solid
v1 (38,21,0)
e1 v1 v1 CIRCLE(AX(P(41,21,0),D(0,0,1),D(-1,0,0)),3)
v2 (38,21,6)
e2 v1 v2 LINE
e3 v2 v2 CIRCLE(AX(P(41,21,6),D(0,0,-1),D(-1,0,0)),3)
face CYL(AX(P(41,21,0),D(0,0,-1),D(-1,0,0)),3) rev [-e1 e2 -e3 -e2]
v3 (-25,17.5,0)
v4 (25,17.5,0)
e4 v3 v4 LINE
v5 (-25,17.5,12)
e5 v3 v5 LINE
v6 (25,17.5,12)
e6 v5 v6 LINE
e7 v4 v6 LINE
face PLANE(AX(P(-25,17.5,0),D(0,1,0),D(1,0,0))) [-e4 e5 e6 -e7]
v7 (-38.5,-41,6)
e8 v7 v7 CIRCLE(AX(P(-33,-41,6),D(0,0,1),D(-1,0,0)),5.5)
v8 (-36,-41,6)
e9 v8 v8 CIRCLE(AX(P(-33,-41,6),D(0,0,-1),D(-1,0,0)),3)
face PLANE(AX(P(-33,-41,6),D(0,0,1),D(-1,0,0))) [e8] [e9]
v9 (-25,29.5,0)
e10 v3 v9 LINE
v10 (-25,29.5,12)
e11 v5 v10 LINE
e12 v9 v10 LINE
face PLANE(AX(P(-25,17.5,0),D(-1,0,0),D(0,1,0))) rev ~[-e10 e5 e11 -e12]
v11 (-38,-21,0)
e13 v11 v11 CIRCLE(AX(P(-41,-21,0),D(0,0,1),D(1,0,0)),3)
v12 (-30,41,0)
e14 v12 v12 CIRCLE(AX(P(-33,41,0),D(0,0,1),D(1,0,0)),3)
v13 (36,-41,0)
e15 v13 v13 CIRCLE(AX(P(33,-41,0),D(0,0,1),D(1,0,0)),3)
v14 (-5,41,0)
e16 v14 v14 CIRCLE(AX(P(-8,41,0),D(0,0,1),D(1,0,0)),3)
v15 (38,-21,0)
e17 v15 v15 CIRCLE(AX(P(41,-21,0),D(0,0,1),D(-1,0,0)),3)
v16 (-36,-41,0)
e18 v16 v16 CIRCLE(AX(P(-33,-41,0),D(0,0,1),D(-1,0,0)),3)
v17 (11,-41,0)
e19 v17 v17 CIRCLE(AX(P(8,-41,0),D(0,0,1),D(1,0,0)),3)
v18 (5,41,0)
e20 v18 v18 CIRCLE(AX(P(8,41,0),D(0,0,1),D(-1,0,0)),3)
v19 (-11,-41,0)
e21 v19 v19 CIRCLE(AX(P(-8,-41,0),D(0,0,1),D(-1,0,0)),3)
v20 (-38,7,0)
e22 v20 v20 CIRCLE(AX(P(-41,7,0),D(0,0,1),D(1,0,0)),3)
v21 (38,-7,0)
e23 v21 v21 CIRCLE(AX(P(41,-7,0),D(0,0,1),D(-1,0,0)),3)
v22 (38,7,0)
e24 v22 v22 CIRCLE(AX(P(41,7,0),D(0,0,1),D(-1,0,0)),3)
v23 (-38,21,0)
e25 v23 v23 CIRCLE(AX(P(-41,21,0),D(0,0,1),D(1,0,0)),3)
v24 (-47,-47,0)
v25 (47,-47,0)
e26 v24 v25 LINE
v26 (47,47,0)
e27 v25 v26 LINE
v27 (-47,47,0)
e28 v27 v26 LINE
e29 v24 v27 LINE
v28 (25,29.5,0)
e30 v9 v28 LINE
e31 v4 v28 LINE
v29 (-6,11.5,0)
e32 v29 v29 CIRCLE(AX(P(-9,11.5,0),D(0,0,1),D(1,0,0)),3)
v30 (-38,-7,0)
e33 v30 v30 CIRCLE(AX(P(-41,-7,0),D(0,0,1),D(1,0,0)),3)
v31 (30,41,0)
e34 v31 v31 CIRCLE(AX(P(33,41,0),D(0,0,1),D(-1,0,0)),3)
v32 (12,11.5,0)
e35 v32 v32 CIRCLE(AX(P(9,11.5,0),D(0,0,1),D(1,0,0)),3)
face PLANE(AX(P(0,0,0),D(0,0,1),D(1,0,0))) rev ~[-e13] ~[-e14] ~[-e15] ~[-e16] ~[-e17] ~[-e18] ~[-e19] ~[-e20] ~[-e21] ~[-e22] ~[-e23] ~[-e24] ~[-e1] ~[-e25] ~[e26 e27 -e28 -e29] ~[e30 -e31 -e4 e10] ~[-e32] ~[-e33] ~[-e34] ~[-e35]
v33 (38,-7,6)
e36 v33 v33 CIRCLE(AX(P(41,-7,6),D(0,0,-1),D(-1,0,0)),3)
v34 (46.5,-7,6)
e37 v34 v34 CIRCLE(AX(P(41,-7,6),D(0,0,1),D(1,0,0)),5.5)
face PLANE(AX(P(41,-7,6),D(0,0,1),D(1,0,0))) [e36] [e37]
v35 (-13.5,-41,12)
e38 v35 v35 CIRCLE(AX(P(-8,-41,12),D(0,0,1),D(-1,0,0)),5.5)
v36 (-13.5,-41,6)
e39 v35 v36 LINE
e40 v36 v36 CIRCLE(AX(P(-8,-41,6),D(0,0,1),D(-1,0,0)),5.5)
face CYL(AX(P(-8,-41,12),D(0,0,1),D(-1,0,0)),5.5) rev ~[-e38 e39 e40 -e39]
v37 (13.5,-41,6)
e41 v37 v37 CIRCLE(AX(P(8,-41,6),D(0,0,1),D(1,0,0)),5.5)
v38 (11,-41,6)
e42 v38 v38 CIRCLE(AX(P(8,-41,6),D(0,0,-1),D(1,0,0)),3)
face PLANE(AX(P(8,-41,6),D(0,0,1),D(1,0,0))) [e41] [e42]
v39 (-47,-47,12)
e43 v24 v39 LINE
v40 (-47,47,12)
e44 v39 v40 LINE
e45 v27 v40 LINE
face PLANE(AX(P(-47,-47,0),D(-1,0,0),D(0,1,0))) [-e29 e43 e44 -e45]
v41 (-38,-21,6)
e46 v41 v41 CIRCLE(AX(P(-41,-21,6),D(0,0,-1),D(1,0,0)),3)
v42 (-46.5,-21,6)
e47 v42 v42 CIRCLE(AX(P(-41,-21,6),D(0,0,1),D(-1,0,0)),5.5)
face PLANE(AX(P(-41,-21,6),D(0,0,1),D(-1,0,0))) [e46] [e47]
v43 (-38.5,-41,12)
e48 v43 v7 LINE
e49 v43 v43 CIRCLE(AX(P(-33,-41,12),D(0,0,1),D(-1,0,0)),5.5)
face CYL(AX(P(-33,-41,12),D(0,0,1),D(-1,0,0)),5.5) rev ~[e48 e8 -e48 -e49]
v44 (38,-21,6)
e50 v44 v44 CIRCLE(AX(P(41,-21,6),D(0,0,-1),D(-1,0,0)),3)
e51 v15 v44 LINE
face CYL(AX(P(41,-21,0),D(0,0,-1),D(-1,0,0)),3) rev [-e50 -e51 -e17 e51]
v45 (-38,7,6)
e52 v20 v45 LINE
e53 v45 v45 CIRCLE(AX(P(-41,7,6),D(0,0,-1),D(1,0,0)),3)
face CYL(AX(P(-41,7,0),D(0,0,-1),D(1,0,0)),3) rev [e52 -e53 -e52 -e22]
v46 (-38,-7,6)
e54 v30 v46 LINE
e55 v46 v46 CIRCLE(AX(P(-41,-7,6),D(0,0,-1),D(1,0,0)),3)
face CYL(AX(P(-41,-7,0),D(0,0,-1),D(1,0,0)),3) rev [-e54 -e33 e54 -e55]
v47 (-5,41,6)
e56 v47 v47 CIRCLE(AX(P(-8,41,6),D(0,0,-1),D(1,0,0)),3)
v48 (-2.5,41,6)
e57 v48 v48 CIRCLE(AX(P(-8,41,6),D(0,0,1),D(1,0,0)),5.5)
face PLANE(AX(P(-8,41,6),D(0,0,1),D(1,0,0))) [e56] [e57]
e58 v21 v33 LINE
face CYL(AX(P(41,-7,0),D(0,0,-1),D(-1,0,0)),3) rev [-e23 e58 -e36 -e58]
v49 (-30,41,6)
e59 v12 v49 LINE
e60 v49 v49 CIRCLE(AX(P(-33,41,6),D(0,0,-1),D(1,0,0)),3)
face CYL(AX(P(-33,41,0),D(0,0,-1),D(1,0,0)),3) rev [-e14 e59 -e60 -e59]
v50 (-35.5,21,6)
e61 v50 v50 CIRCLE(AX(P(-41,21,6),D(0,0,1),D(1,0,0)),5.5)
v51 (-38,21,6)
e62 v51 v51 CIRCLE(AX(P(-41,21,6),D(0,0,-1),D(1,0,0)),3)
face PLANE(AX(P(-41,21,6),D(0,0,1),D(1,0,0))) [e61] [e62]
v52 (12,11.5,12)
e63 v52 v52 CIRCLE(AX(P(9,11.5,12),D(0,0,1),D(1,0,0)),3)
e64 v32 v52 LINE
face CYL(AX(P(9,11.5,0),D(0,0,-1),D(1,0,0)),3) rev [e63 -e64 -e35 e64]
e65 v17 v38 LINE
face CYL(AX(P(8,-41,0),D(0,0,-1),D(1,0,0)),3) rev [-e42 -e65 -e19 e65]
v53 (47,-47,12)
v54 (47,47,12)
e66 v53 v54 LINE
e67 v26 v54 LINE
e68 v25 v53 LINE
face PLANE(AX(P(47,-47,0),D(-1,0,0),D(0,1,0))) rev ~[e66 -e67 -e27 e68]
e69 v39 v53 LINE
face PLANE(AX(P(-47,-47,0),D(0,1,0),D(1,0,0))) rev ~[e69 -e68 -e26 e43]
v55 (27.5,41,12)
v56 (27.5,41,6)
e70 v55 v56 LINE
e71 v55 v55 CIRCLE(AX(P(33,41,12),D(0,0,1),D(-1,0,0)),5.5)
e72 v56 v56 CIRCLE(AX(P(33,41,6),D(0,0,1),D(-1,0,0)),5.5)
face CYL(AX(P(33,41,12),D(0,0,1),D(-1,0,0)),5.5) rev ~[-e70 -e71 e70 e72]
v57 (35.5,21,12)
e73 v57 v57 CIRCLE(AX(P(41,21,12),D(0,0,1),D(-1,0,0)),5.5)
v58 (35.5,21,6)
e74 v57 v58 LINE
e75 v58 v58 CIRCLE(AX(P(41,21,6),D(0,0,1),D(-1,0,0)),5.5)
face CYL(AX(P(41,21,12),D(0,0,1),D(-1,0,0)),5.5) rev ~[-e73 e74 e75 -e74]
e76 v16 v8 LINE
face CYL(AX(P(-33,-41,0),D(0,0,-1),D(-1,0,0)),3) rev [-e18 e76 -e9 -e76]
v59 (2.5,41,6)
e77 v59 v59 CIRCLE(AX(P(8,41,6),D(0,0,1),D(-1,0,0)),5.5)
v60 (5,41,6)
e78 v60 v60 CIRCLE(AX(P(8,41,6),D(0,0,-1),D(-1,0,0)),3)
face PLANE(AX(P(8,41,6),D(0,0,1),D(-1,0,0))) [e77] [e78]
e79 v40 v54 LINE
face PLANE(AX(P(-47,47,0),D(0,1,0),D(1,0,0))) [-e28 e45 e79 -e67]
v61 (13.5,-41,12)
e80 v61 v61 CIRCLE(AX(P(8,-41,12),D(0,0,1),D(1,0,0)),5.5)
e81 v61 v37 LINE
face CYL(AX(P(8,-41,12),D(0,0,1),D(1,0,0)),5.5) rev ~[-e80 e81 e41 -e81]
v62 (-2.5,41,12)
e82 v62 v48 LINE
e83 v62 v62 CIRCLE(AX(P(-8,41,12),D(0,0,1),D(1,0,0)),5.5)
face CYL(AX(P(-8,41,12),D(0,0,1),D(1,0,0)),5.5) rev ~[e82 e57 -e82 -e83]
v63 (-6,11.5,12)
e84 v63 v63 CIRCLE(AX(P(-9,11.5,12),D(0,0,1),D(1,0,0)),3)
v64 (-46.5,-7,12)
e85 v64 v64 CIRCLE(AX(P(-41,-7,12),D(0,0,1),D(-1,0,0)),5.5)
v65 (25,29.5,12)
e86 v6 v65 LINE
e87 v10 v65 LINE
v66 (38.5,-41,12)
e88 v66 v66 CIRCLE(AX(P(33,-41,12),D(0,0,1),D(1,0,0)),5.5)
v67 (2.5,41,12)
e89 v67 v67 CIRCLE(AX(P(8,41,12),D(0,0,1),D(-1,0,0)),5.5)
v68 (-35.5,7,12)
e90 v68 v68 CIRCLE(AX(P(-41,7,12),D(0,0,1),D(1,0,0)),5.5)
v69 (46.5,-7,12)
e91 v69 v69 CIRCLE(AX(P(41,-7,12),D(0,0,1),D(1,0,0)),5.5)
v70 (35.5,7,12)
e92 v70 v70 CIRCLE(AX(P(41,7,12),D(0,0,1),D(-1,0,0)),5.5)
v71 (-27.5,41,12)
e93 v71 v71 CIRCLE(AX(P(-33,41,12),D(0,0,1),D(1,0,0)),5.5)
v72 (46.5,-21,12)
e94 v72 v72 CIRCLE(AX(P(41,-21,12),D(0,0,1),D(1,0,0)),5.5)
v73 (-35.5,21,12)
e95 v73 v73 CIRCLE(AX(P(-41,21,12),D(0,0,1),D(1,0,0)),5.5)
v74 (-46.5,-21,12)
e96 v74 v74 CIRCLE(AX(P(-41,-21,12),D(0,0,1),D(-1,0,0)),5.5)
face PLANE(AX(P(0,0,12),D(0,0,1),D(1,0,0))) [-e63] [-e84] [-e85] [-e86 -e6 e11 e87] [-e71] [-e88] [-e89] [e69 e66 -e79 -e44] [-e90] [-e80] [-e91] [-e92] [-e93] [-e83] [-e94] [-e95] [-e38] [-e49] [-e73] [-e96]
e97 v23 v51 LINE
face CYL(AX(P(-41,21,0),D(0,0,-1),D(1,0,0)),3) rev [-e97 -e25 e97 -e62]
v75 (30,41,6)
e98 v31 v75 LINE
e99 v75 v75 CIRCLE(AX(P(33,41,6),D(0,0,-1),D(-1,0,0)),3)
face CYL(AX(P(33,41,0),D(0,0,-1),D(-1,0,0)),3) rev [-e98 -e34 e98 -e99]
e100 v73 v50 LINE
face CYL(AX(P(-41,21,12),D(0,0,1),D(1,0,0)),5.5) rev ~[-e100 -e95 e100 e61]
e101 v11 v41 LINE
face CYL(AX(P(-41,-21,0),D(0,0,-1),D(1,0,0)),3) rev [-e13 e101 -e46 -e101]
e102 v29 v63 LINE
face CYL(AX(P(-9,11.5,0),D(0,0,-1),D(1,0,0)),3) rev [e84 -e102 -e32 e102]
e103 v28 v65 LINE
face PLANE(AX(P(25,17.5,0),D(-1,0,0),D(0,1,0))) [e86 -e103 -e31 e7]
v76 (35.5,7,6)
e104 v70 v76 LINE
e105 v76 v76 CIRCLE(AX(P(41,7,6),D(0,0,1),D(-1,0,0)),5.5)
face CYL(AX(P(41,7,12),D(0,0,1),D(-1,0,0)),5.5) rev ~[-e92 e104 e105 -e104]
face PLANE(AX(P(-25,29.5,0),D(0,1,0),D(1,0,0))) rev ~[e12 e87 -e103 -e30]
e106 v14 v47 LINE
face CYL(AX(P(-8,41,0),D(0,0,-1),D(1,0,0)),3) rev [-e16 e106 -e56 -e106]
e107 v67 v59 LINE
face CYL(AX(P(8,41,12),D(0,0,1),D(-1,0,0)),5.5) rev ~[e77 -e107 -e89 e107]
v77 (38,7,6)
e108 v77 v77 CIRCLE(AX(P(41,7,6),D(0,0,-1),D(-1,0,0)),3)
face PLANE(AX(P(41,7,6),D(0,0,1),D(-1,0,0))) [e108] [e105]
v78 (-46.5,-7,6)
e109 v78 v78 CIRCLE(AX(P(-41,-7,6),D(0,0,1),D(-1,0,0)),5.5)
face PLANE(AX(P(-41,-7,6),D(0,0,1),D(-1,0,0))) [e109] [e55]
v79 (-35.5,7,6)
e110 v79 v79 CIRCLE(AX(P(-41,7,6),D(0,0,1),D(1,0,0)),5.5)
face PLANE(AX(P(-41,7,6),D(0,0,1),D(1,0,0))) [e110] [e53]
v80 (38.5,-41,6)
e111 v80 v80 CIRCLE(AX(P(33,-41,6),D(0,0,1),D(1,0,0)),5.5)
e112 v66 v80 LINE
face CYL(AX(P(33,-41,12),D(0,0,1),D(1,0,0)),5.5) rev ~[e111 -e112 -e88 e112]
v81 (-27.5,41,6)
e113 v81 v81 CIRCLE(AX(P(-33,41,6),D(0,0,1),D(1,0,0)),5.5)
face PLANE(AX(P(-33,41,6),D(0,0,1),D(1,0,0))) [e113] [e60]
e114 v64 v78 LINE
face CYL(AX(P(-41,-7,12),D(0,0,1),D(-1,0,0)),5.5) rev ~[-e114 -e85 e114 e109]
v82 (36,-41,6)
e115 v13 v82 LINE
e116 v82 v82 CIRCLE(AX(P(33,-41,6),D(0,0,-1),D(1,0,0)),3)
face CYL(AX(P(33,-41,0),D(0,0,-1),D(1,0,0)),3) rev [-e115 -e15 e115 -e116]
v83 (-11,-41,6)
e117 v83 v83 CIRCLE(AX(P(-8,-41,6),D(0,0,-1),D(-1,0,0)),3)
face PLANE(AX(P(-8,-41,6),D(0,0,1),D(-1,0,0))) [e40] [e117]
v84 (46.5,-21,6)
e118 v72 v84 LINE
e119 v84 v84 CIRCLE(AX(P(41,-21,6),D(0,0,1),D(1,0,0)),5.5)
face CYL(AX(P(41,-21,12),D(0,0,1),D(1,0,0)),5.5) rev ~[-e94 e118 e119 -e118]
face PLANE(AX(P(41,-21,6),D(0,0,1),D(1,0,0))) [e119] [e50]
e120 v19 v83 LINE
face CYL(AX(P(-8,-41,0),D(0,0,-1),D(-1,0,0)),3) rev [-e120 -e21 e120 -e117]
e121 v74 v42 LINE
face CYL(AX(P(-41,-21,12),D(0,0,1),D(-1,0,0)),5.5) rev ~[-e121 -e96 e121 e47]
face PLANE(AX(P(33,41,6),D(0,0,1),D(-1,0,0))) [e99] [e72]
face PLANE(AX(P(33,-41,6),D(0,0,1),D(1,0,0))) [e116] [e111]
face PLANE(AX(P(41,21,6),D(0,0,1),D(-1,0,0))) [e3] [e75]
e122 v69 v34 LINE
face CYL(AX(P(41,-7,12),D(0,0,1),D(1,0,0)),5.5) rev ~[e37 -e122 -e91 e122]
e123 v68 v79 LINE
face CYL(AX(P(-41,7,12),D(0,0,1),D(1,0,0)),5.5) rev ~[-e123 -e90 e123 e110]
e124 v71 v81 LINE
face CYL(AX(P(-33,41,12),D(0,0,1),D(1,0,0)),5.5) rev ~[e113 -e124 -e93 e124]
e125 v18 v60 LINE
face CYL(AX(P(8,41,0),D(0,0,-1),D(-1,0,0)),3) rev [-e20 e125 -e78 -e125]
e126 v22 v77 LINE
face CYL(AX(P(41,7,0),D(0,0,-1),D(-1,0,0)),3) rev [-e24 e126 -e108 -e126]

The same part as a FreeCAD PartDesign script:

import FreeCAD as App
import Part
import Sketcher
from FreeCAD import Vector

doc = App.newDocument("Part")
body = doc.addObject("PartDesign::Body", "Body")

# Sketch on XY plane
sketch1 = body.newObject("Sketcher::SketchObject", "Sketch")
sketch1.AttachmentSupport = (doc.getObject("XY_Plane"), [""])
sketch1.MapMode = "FlatFace"
sketch1.addGeometry([
    Part.LineSegment(Vector(-47, 47, 0), Vector(-47, -47, 0)),  # 0
    Part.LineSegment(Vector(-47, -47, 0), Vector(47, -47, 0)),  # 1
    Part.LineSegment(Vector(47, -47, 0), Vector(47, 47, 0)),  # 2
    Part.LineSegment(Vector(47, 47, 0), Vector(-47, 47, 0)),  # 3
    Part.Circle(Vector(-33, -41, 0), Vector(0, 0, 1), 3),  # 4
    Part.Circle(Vector(-8, -41, 0), Vector(0, 0, 1), 3),  # 5
    Part.Circle(Vector(-41, -21, 0), Vector(0, 0, 1), 3),  # 6
    Part.Circle(Vector(-41, -7, 0), Vector(0, 0, 1), 3),  # 7
    Part.Circle(Vector(8, -41, 0), Vector(0, 0, 1), 3),  # 8
    Part.Circle(Vector(33, -41, 0), Vector(0, 0, 1), 3),  # 9
    Part.Circle(Vector(41, -21, 0), Vector(0, 0, 1), 3),  # 10
    Part.Circle(Vector(41, -7, 0), Vector(0, 0, 1), 3),  # 11
    Part.Circle(Vector(-41, 7, 0), Vector(0, 0, 1), 3),  # 12
    Part.Circle(Vector(-41, 21, 0), Vector(0, 0, 1), 3),  # 13
    Part.Circle(Vector(-9, 11.5, 0), Vector(0, 0, 1), 3),  # 14
    Part.Circle(Vector(-33, 41, 0), Vector(0, 0, 1), 3),  # 15
    Part.Circle(Vector(-8, 41, 0), Vector(0, 0, 1), 3),  # 16
    Part.Circle(Vector(9, 11.5, 0), Vector(0, 0, 1), 3),  # 17
    Part.Circle(Vector(41, 7, 0), Vector(0, 0, 1), 3),  # 18
    Part.Circle(Vector(41, 21, 0), Vector(0, 0, 1), 3),  # 19
    Part.LineSegment(Vector(25, 17.5, 0), Vector(-25, 17.5, 0)),  # 20
    Part.LineSegment(Vector(-25, 17.5, 0), Vector(-25, 29.5, 0)),  # 21
    Part.LineSegment(Vector(-25, 29.5, 0), Vector(25, 29.5, 0)),  # 22
    Part.LineSegment(Vector(25, 29.5, 0), Vector(25, 17.5, 0)),  # 23
    Part.Circle(Vector(8, 41, 0), Vector(0, 0, 1), 3),  # 24
    Part.Circle(Vector(33, 41, 0), Vector(0, 0, 1), 3),  # 25
], False)
sketch1.addConstraint([
    Sketcher.Constraint("Coincident", 0, 2, 1, 1),
    Sketcher.Constraint("Coincident", 1, 2, 2, 1),
    Sketcher.Constraint("Coincident", 2, 2, 3, 1),
    Sketcher.Constraint("Coincident", 3, 2, 0, 1),
    Sketcher.Constraint("Coincident", 20, 2, 21, 1),
    Sketcher.Constraint("Coincident", 21, 2, 22, 1),
    Sketcher.Constraint("Coincident", 22, 2, 23, 1),
    Sketcher.Constraint("Coincident", 23, 2, 20, 1),
    Sketcher.Constraint("Vertical", 0),
    Sketcher.Constraint("Horizontal", 1),
    Sketcher.Constraint("Vertical", 2),
    Sketcher.Constraint("Horizontal", 3),
    Sketcher.Constraint("Horizontal", 20),
    Sketcher.Constraint("Vertical", 21),
    Sketcher.Constraint("Horizontal", 22),
    Sketcher.Constraint("Vertical", 23),
    Sketcher.Constraint("Equal", 4, 5),
    Sketcher.Constraint("Equal", 5, 6),
    Sketcher.Constraint("Equal", 6, 7),
    Sketcher.Constraint("Equal", 7, 8),
    Sketcher.Constraint("Equal", 8, 9),
    Sketcher.Constraint("Equal", 9, 10),
    Sketcher.Constraint("Equal", 10, 11),
    Sketcher.Constraint("Equal", 11, 12),
    Sketcher.Constraint("Equal", 12, 13),
    Sketcher.Constraint("Equal", 13, 14),
    Sketcher.Constraint("Equal", 14, 15),
    Sketcher.Constraint("Equal", 15, 16),
    Sketcher.Constraint("Equal", 16, 17),
    Sketcher.Constraint("Equal", 17, 18),
    Sketcher.Constraint("Equal", 18, 19),
    Sketcher.Constraint("Equal", 19, 24),
    Sketcher.Constraint("Equal", 24, 25),
    Sketcher.Constraint("Symmetric", 11, 3, 12, 3, -1, 1),
    Sketcher.Constraint("Symmetric", 10, 3, 13, 3, -1, 1),
    Sketcher.Constraint("Symmetric", 9, 3, 15, 3, -1, 1),
    Sketcher.Constraint("Symmetric", 8, 3, 16, 3, -1, 1),
    Sketcher.Constraint("Symmetric", 7, 3, 18, 3, -1, 1),
    Sketcher.Constraint("Symmetric", 6, 3, 19, 3, -1, 1),
    Sketcher.Constraint("Symmetric", 5, 3, 24, 3, -1, 1),
    Sketcher.Constraint("Symmetric", 4, 3, 25, 3, -1, 1),
    Sketcher.Constraint("Symmetric", 0, 2, 2, 2, -1, 1),
    Sketcher.Constraint("Symmetric", 5, 3, 8, 3, -2),
    Sketcher.Constraint("Symmetric", 4, 3, 9, 3, -2),
    Sketcher.Constraint("Symmetric", 6, 3, 10, 3, -2),
    Sketcher.Constraint("Symmetric", 7, 3, 11, 3, -2),
    Sketcher.Constraint("Symmetric", 14, 3, 17, 3, -2),
    Sketcher.Constraint("Horizontal", 4, 3, 5, 3),
    Sketcher.Constraint("Vertical", 6, 3, 7, 3),
    Sketcher.Constraint("Equal", 3, 0),
    Sketcher.Constraint("Diameter", 4, 6.0),
    Sketcher.Constraint("DistanceX", 1, 1, 1, 2, 94.0),
    Sketcher.Constraint("DistanceX", 20, 2, 20, 1, 50.0),
    Sketcher.Constraint("DistanceY", 21, 1, 21, 2, 12.0),
    Sketcher.Constraint("DistanceX", 4, 3, -1, 1, 33.0),
    Sketcher.Constraint("DistanceY", 4, 3, -1, 1, 41.0),
    Sketcher.Constraint("DistanceX", 5, 3, -1, 1, 8.0),
    Sketcher.Constraint("DistanceX", 6, 3, -1, 1, 41.0),
    Sketcher.Constraint("DistanceY", 6, 3, -1, 1, 21.0),
    Sketcher.Constraint("DistanceY", 7, 3, -1, 1, 7.0),
    Sketcher.Constraint("DistanceX", 14, 3, -1, 1, 9.0),
    Sketcher.Constraint("DistanceX", 20, 2, -1, 1, 25.0),
    Sketcher.Constraint("DistanceY", 14, 3, 20, 2, 6.0),
    Sketcher.Constraint("DistanceY", -1, 1, 14, 3, 11.5),
])
pad1 = body.newObject("PartDesign::Pad", "Pad")
pad1.Profile = sketch1
pad1.Length = 12

# Sketch on XY plane
sketch2 = body.newObject("Sketcher::SketchObject", "Sketch001")
sketch2.AttachmentSupport = (doc.getObject("XY_Plane"), [""])
sketch2.MapMode = "FlatFace"
sketch2.AttachmentOffset = App.Placement(Vector(0, 0, 12), App.Rotation())
sketch2.addGeometry([
    Part.Circle(Vector(-33, 41, 0), Vector(0, 0, 1), 5.5),  # 0
    Part.Circle(Vector(-8, 41, 0), Vector(0, 0, 1), 5.5),  # 1
    Part.Circle(Vector(-41, 21, 0), Vector(0, 0, 1), 5.5),  # 2
    Part.Circle(Vector(41, 7, 0), Vector(0, 0, 1), 5.5),  # 3
    Part.Circle(Vector(-41, 7, 0), Vector(0, 0, 1), 5.5),  # 4
    Part.Circle(Vector(41, 21, 0), Vector(0, 0, 1), 5.5),  # 5
    Part.Circle(Vector(8, 41, 0), Vector(0, 0, 1), 5.5),  # 6
    Part.Circle(Vector(33, 41, 0), Vector(0, 0, 1), 5.5),  # 7
    Part.Circle(Vector(33, -41, 0), Vector(0, 0, 1), 5.5),  # 8
    Part.Circle(Vector(8, -41, 0), Vector(0, 0, 1), 5.5),  # 9
    Part.Circle(Vector(41, -21, 0), Vector(0, 0, 1), 5.5),  # 10
    Part.Circle(Vector(-41, -7, 0), Vector(0, 0, 1), 5.5),  # 11
    Part.Circle(Vector(41, -7, 0), Vector(0, 0, 1), 5.5),  # 12
    Part.Circle(Vector(-41, -21, 0), Vector(0, 0, 1), 5.5),  # 13
    Part.Circle(Vector(-8, -41, 0), Vector(0, 0, 1), 5.5),  # 14
    Part.Circle(Vector(-33, -41, 0), Vector(0, 0, 1), 5.5),  # 15
], False)
sketch2.addConstraint([
    Sketcher.Constraint("Equal", 0, 1),
    Sketcher.Constraint("Equal", 1, 2),
    Sketcher.Constraint("Equal", 2, 3),
    Sketcher.Constraint("Equal", 3, 4),
    Sketcher.Constraint("Equal", 4, 5),
    Sketcher.Constraint("Equal", 5, 6),
    Sketcher.Constraint("Equal", 6, 7),
    Sketcher.Constraint("Equal", 7, 8),
    Sketcher.Constraint("Equal", 8, 9),
    Sketcher.Constraint("Equal", 9, 10),
    Sketcher.Constraint("Equal", 10, 11),
    Sketcher.Constraint("Equal", 11, 12),
    Sketcher.Constraint("Equal", 12, 13),
    Sketcher.Constraint("Equal", 13, 14),
    Sketcher.Constraint("Equal", 14, 15),
    Sketcher.Constraint("Symmetric", 0, 3, 8, 3, -1, 1),
    Sketcher.Constraint("Symmetric", 1, 3, 9, 3, -1, 1),
    Sketcher.Constraint("Symmetric", 2, 3, 10, 3, -1, 1),
    Sketcher.Constraint("Symmetric", 3, 3, 11, 3, -1, 1),
    Sketcher.Constraint("Symmetric", 4, 3, 12, 3, -1, 1),
    Sketcher.Constraint("Symmetric", 5, 3, 13, 3, -1, 1),
    Sketcher.Constraint("Symmetric", 6, 3, 14, 3, -1, 1),
    Sketcher.Constraint("Symmetric", 7, 3, 15, 3, -1, 1),
    Sketcher.Constraint("Symmetric", 3, 3, 4, 3, -2),
    Sketcher.Constraint("Symmetric", 2, 3, 5, 3, -2),
    Sketcher.Constraint("Symmetric", 1, 3, 6, 3, -2),
    Sketcher.Constraint("Symmetric", 0, 3, 7, 3, -2),
    Sketcher.Constraint("Horizontal", 0, 3, 1, 3),
    Sketcher.Constraint("Vertical", 2, 3, 4, 3),
    Sketcher.Constraint("Diameter", 0, 11.0),
    Sketcher.Constraint("DistanceX", 0, 3, -1, 1, 33.0),
    Sketcher.Constraint("DistanceY", -1, 1, 0, 3, 41.0),
    Sketcher.Constraint("DistanceX", 1, 3, -1, 1, 8.0),
    Sketcher.Constraint("DistanceX", 2, 3, -1, 1, 41.0),
    Sketcher.Constraint("DistanceY", -1, 1, 2, 3, 21.0),
    Sketcher.Constraint("DistanceY", -1, 1, 3, 3, 7.0),
])
pocket1 = body.newObject("PartDesign::Pocket", "Pocket")
pocket1.Profile = sketch2
pocket1.Length = 6

doc.recompute()
